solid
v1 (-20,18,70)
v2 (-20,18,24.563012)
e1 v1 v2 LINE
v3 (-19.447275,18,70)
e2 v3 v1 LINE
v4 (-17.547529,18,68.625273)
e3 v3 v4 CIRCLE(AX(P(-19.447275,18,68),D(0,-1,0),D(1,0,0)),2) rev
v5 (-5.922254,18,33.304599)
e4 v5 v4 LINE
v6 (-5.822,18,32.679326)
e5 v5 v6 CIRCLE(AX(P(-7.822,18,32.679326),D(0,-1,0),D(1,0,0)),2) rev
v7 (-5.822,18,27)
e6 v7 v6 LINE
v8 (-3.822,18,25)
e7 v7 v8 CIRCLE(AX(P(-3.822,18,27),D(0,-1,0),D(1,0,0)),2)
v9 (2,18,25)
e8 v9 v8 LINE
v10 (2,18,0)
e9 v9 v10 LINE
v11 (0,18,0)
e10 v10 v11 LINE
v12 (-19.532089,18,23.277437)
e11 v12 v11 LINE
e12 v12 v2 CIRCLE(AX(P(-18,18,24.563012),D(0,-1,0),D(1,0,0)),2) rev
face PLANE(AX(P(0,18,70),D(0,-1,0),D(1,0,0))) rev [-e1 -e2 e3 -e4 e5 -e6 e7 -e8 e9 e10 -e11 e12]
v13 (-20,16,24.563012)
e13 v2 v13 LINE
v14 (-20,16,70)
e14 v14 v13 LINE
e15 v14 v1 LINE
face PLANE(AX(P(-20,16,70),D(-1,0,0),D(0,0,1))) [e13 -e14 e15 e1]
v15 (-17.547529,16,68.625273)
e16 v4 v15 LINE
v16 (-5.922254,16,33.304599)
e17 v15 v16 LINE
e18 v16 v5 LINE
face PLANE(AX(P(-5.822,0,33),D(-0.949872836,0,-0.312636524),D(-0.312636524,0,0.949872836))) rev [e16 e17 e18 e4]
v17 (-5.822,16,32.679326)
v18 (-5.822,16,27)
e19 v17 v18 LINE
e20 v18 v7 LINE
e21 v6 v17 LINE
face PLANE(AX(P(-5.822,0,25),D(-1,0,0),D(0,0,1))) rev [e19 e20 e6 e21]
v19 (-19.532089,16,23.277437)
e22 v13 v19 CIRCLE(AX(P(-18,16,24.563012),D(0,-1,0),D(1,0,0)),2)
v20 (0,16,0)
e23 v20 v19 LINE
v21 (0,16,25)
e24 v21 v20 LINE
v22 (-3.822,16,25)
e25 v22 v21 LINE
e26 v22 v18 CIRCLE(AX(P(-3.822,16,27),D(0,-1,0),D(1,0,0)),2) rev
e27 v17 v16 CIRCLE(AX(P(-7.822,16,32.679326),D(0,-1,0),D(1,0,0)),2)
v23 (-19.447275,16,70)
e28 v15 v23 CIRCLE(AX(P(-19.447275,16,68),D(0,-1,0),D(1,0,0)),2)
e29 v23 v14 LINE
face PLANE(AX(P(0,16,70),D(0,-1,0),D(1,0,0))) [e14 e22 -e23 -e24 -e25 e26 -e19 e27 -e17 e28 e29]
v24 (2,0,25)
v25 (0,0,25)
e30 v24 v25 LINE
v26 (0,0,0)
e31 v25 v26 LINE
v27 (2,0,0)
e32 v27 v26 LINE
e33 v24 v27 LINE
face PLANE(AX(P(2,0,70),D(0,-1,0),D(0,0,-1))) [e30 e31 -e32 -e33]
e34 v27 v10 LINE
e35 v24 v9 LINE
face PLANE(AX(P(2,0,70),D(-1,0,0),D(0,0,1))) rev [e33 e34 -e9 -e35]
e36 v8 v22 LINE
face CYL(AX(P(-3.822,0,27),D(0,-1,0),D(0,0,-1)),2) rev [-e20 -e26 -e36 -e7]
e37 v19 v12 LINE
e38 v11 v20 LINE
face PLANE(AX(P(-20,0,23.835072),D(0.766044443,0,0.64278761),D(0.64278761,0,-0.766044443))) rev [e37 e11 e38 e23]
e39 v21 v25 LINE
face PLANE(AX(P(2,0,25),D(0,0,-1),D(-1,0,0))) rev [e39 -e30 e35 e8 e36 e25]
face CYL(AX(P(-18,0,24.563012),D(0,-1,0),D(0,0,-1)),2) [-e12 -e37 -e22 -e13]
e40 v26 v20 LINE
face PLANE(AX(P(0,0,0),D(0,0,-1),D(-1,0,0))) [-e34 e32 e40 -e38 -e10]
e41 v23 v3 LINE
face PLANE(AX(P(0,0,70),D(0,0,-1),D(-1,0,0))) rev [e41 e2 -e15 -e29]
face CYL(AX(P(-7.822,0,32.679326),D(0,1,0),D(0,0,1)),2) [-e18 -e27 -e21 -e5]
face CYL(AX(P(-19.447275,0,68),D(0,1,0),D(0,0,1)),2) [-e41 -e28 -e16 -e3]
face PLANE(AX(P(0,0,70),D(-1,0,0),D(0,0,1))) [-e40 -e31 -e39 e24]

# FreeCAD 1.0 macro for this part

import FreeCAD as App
import Part
import Sketcher
Q = App.Units.Quantity


def edges_at(feature, points):
    """Names of the edges that pass closest to the given points."""
    edges = feature.Shape.Edges
    near = lambda p: min(range(len(edges)), key=lambda i: edges[i].distToShape(Part.Vertex(*p))[0])
    return sorted({f"Edge{near(p) + 1}" for p in points})


def add_polygon(sketch, points):
    """Adds a closed chain of lines whose ends are joined by coincident constraints."""
    first, n = sketch.GeometryCount, len(points)
    for a, b in zip(points, points[1:] + points[:1]):
        sketch.addGeometry(Part.LineSegment(App.Vector(*a, 0), App.Vector(*b, 0)), False)
    for i in range(n):
        sketch.addConstraint(Sketcher.Constraint("Coincident", first + i, 2, first + (i + 1) % n, 1))

doc = App.newDocument("Part")
body = doc.addObject("PartDesign::Body", "Body")

sketch1 = body.newObject("Sketcher::SketchObject", "Sketch")
sketch1.AttachmentSupport = (doc.getObject("XY_Plane"), [""])
sketch1.MapMode = "FlatFace"
add_polygon(sketch1, [(0, 16), (0, 0), (2, 0), (2, 18), (-20, 18), (-20, 16)])
sketch1.addConstraint(Sketcher.Constraint("Vertical", 0))
sketch1.addConstraint(Sketcher.Constraint("Horizontal", 1))
sketch1.addConstraint(Sketcher.Constraint("Vertical", 2))
sketch1.addConstraint(Sketcher.Constraint("Horizontal", 3))
sketch1.addConstraint(Sketcher.Constraint("Vertical", 4))
sketch1.addConstraint(Sketcher.Constraint("Horizontal", 5))
sketch1.addConstraint(Sketcher.Constraint("Coincident", 0, 2, -1, 1))
sketch1.addConstraint(Sketcher.Constraint("Equal", 1, 4))
sketch1.addConstraint(Sketcher.Constraint("DistanceX", 1, 1, 1, 2, 2.0))
sketch1.addConstraint(Sketcher.Constraint("DistanceX", 3, 2, 3, 1, 22.0))
sketch1.addConstraint(Sketcher.Constraint("DistanceY", 0, 2, 0, 1, 16.0))
pad1 = body.newObject("PartDesign::Pad", "Pad")
pad1.Profile = sketch1
pad1.Length = 70

sketch2 = body.newObject("Sketcher::SketchObject", "Sketch001")
sketch2.AttachmentSupport = (doc.getObject("XZ_Plane"), [""])
sketch2.MapMode = "FlatFace"
sketch2.AttachmentOffset = App.Placement(App.Vector(0, 0, -18), App.Rotation())
add_polygon(sketch2, [(2, 25), (-6, 25), (-6, 33), (-18, 70), (2, 70)])
sketch2.addConstraint(Sketcher.Constraint("Horizontal", 0))
sketch2.addConstraint(Sketcher.Constraint("Vertical", 1))
sketch2.addConstraint(Sketcher.Constraint("Horizontal", 3))
sketch2.addConstraint(Sketcher.Constraint("Vertical", 4))
sketch2.addConstraint(Sketcher.Constraint("DistanceX", 3, 1, 3, 2, 20.0))
sketch2.addConstraint(Sketcher.Constraint("DistanceY", 1, 1, 1, 2, 8.0))
sketch2.addConstraint(Sketcher.Constraint("DistanceY", 4, 2, 4, 1, 45.0))
sketch2.addConstraint(Sketcher.Constraint("DistanceY", -1, 1, 0, 2, 25.0))
sketch2.addConstraint(Sketcher.Constraint("DistanceX", 2, 2, -1, 1, 18.0))
sketch2.addConstraint(Sketcher.Constraint("DistanceX", 0, 2, 0, 1, 7.822))
pocket1 = body.newObject("PartDesign::Pocket", "Pocket")
pocket1.Profile = sketch2
pocket1.Type = "ThroughAll"
pocket1.Reversed = True

sketch3 = body.newObject("Sketcher::SketchObject", "Sketch002")
sketch3.AttachmentSupport = (doc.getObject("XZ_Plane"), [""])
sketch3.MapMode = "FlatFace"
sketch3.AttachmentOffset = App.Placement(App.Vector(0, 0, -18), App.Rotation())
add_polygon(sketch3, [(-20, 24), (0, 0), (-20, 0)])
sketch3.addConstraint(Sketcher.Constraint("Horizontal", 1))
sketch3.addConstraint(Sketcher.Constraint("Vertical", 2))
sketch3.addConstraint(Sketcher.Constraint("Coincident", 0, 2, -1, 1))
sketch3.addConstraint(Sketcher.Constraint("DistanceX", 1, 2, 1, 1, 20.0))
sketch3.addConstraint(Sketcher.Constraint("Angle", 0, Q("-50 deg")))
pocket2 = body.newObject("PartDesign::Pocket", "Pocket001")
pocket2.Profile = sketch3
pocket2.Type = "ThroughAll"
pocket2.Reversed = True
doc.recompute()

fillet = body.newObject("PartDesign::Fillet", "Fillet")
fillet.Base = (pocket2, edges_at(pocket2, [
    (-18, 17, 70),
    (-5.822, 17, 33),
    (-5.822, 17, 25),
    (-20, 17, 23.835),
]))
fillet.Radius = 2

doc.recompute()
